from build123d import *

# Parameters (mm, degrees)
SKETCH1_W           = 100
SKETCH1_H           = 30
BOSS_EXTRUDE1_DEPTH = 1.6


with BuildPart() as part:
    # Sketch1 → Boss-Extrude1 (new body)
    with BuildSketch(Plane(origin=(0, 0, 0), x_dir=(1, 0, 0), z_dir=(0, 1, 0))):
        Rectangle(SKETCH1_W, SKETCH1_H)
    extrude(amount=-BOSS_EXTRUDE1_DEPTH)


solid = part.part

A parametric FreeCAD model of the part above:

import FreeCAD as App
import Part
import Sketcher


def add_polygon(sketch, points):
    """Adds a closed chain of lines whose ends are joined by coincident constraints."""
    first, n = sketch.GeometryCount, len(points)
    for a, b in zip(points, points[1:] + points[:1]):
        sketch.addGeometry(Part.LineSegment(App.Vector(*a, 0), App.Vector(*b, 0)), False)
    for i in range(n):
        sketch.addConstraint(Sketcher.Constraint("Coincident", first + i, 2, first + (i + 1) % n, 1))

doc = App.newDocument("Part")
body = doc.addObject("PartDesign::Body", "Body")

# Sketch on XZ plane
sketch1 = body.newObject("Sketcher::SketchObject", "Sketch")
sketch1.AttachmentSupport = (doc.getObject("XZ_Plane"), [""])
sketch1.MapMode = "FlatFace"
add_polygon(sketch1, [(-50, -15), (-50, 15), (50, 15), (50, -15)])  # lines 0-3
sketch1.addConstraint([
    Sketcher.Constraint("Vertical", 0),
    Sketcher.Constraint("Horizontal", 1),
    Sketcher.Constraint("Vertical", 2),
    Sketcher.Constraint("Horizontal", 3),
    Sketcher.Constraint("Symmetric", 0, 2, 2, 2, -1, 1),
    Sketcher.Constraint("DistanceX", 1, 1, 1, 2, 100.0),
    Sketcher.Constraint("DistanceY", 0, 1, 0, 2, 30.0),
])
pad1 = body.newObject("PartDesign::Pad", "Pad")
pad1.Profile = sketch1
pad1.Length = 1.6

doc.recompute()
